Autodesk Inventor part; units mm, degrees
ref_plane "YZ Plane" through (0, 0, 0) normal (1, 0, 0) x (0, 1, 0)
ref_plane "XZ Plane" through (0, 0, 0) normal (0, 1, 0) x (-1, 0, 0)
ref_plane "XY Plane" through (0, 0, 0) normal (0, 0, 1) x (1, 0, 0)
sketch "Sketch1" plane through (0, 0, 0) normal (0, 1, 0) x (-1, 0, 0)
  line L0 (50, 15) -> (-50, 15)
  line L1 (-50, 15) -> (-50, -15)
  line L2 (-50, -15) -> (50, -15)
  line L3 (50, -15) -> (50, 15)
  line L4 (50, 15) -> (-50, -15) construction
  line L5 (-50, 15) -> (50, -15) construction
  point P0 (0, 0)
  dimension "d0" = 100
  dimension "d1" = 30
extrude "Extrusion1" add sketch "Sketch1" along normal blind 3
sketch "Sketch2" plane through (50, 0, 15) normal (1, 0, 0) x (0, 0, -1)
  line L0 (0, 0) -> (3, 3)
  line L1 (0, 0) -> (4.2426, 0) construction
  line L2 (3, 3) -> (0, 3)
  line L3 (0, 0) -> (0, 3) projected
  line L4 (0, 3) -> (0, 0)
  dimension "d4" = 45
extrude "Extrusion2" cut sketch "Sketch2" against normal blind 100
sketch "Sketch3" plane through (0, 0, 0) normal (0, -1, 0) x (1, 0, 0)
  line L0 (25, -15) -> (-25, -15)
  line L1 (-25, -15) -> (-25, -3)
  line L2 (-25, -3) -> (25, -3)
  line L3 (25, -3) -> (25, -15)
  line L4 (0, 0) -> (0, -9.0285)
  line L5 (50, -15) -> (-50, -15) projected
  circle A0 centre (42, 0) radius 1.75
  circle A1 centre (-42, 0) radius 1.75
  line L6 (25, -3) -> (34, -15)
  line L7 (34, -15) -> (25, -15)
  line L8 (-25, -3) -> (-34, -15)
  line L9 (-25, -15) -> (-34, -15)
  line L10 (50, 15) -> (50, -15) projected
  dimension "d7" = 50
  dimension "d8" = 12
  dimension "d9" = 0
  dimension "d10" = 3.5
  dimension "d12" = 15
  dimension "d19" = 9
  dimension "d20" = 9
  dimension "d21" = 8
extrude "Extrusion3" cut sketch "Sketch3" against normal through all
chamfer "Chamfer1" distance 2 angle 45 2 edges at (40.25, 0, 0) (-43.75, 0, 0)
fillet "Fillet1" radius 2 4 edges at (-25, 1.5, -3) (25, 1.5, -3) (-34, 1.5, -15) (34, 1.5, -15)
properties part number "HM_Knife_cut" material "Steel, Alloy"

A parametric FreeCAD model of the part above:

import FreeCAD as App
import Part
import Sketcher
from FreeCAD import Vector


def edges_at(feature, points):
    """Names of the edges that pass closest to the given points."""
    edges = feature.Shape.Edges
    near = lambda p: min(range(len(edges)), key=lambda i: edges[i].distToShape(Part.Vertex(*p))[0])
    return sorted({f"Edge{near(p) + 1}" for p in points})

doc = App.newDocument("Part")
body = doc.addObject("PartDesign::Body", "Body")

sketch1 = doc.addObject("Sketcher::SketchObject", "Sketch")
body.addObject(sketch1)
sketch1.AttachmentSupport = (doc.XZ_Plane, [""])
sketch1.MapMode = "FlatFace"
sketch1.addGeometry(Part.LineSegment(Vector(-50, -15, 0), Vector(-50, 15, 0)), False)
sketch1.addGeometry(Part.LineSegment(Vector(-50, 15, 0), Vector(50, 15, 0)), False)
sketch1.addGeometry(Part.LineSegment(Vector(50, 15, 0), Vector(50, -15, 0)), False)
sketch1.addGeometry(Part.LineSegment(Vector(50, -15, 0), Vector(-50, -15, 0)), False)
sketch1.addConstraint(Sketcher.Constraint("Coincident", 0, 2, 1, 1))
sketch1.addConstraint(Sketcher.Constraint("Coincident", 1, 2, 2, 1))
sketch1.addConstraint(Sketcher.Constraint("Coincident", 2, 2, 3, 1))
sketch1.addConstraint(Sketcher.Constraint("Coincident", 3, 2, 0, 1))
sketch1.addConstraint(Sketcher.Constraint("Vertical", 0))
sketch1.addConstraint(Sketcher.Constraint("Horizontal", 1))
sketch1.addConstraint(Sketcher.Constraint("Vertical", 2))
sketch1.addConstraint(Sketcher.Constraint("Horizontal", 3))
sketch1.addConstraint(Sketcher.Constraint("Symmetric", 0, 2, 2, 2, -1, 1))
sketch1.addConstraint(Sketcher.Constraint("DistanceX", 1, 1, 1, 2, 100.0))
sketch1.addConstraint(Sketcher.Constraint("DistanceY", 0, 1, 0, 2, 30.0))
pad1 = doc.addObject("PartDesign::Pad", "Pad")
body.addObject(pad1)
pad1.Profile = sketch1
pad1.Length = 3
pad1.Reversed = True

sketch2 = doc.addObject("Sketcher::SketchObject", "Sketch001")
body.addObject(sketch2)
sketch2.AttachmentSupport = (doc.YZ_Plane, [""])
sketch2.MapMode = "FlatFace"
sketch2.AttachmentOffset = App.Placement(Vector(0, 0, 50), App.Rotation())
sketch2.addGeometry(Part.LineSegment(Vector(3, 15, 0), Vector(0, 15, 0)), False)
sketch2.addGeometry(Part.LineSegment(Vector(0, 15, 0), Vector(3, 12, 0)), False)
sketch2.addGeometry(Part.LineSegment(Vector(3, 12, 0), Vector(3, 15, 0)), False)
sketch2.addConstraint(Sketcher.Constraint("Coincident", 0, 2, 1, 1))
sketch2.addConstraint(Sketcher.Constraint("Coincident", 1, 2, 2, 1))
sketch2.addConstraint(Sketcher.Constraint("Coincident", 2, 2, 0, 1))
sketch2.addConstraint(Sketcher.Constraint("Horizontal", 0))
sketch2.addConstraint(Sketcher.Constraint("Vertical", 2))
sketch2.addConstraint(Sketcher.Constraint("PointOnObject", 0, 2, -2))
sketch2.addConstraint(Sketcher.Constraint("Equal", 0, 2))
sketch2.addConstraint(Sketcher.Constraint("DistanceX", 0, 2, 0, 1, 3.0))
sketch2.addConstraint(Sketcher.Constraint("DistanceY", -1, 1, 0, 2, 15.0))
pocket1 = doc.addObject("PartDesign::Pocket", "Pocket")
body.addObject(pocket1)
pocket1.Profile = sketch2
pocket1.Length = 100

sketch3 = doc.addObject("Sketcher::SketchObject", "Sketch002")
body.addObject(sketch3)
sketch3.AttachmentSupport = (doc.XZ_Plane, [""])
sketch3.MapMode = "FlatFace"
sketch3.addGeometry(Part.LineSegment(Vector(34, -15, 0), Vector(25, -3, 0)), False)
sketch3.addGeometry(Part.LineSegment(Vector(25, -3, 0), Vector(-25, -3, 0)), False)
sketch3.addGeometry(Part.LineSegment(Vector(-25, -3, 0), Vector(-34, -15, 0)), False)
sketch3.addGeometry(Part.LineSegment(Vector(-34, -15, 0), Vector(34, -15, 0)), False)
sketch3.addGeometry(Part.Circle(Vector(42, 0, 0), Vector(0, 0, 1), 1.75), False)
sketch3.addGeometry(Part.Circle(Vector(-42, 0, 0), Vector(0, 0, 1), 1.75), False)
sketch3.addConstraint(Sketcher.Constraint("Coincident", 0, 2, 1, 1))
sketch3.addConstraint(Sketcher.Constraint("Coincident", 1, 2, 2, 1))
sketch3.addConstraint(Sketcher.Constraint("Coincident", 2, 2, 3, 1))
sketch3.addConstraint(Sketcher.Constraint("Coincident", 3, 2, 0, 1))
sketch3.addConstraint(Sketcher.Constraint("Horizontal", 1))
sketch3.addConstraint(Sketcher.Constraint("Horizontal", 3))
sketch3.addConstraint(Sketcher.Constraint("Equal", 4, 5))
sketch3.addConstraint(Sketcher.Constraint("Symmetric", 4, 3, 5, 3, -1, 1))
sketch3.addConstraint(Sketcher.Constraint("PointOnObject", 4, 3, -1))
sketch3.addConstraint(Sketcher.Constraint("Equal", 0, 2))
sketch3.addConstraint(Sketcher.Constraint("Diameter", 4, 3.5))
sketch3.addConstraint(Sketcher.Constraint("DistanceX", 1, 2, 1, 1, 50.0))
sketch3.addConstraint(Sketcher.Constraint("Distance", 0, 15.0))
sketch3.addConstraint(Sketcher.Constraint("DistanceY", 2, 2, -1, 1, 15.0))
sketch3.addConstraint(Sketcher.Constraint("DistanceX", 2, 2, 1, 2, 9.0))
sketch3.addConstraint(Sketcher.Constraint("DistanceX", 5, 3, 2, 2, 8.0))
sketch3.addConstraint(Sketcher.Constraint("DistanceX", 3, 2, 4, 3, 8.0))
pocket2 = doc.addObject("PartDesign::Pocket", "Pocket001")
body.addObject(pocket2)
pocket2.Profile = sketch3
pocket2.Type = "ThroughAll"
doc.recompute()

chamfer = doc.addObject("PartDesign::Chamfer", "Chamfer")
body.addObject(chamfer)
chamfer.Base = (pocket2, edges_at(pocket2, [(40.25, 0, 0), (-43.75, 0, 0)]))
chamfer.Size = 2
doc.recompute()

fillet = doc.addObject("PartDesign::Fillet", "Fillet")
body.addObject(fillet)
fillet.Base = (chamfer, edges_at(chamfer, [
    (-25, 1.5, -3),
    (25, 1.5, -3),
    (-34, 1.5, -15),
    (34, 1.5, -15),
]))
fillet.Radius = 2

doc.recompute()
